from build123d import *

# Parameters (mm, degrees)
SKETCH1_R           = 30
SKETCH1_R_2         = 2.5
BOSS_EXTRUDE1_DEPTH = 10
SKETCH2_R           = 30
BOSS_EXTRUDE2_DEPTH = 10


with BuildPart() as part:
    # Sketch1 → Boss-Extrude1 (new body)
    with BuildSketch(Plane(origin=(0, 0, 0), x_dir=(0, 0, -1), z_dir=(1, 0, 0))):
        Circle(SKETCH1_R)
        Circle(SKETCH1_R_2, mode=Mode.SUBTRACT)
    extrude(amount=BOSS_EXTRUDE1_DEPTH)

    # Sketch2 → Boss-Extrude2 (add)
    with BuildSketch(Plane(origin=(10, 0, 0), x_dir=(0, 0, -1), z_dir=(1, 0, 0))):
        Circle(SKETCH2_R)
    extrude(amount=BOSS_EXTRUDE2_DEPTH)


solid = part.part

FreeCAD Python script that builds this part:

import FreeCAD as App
import Part
import Sketcher
from FreeCAD import Vector
Q = App.Units.Quantity

doc = App.newDocument("Part")
params = doc.addObject("Spreadsheet::Sheet", "Params")
for row, (alias, value) in enumerate([
    ("sketch1_diameter", "60 mm"),
    ("sketch1_diameter2", "5 mm"),
    ("pad1_length", "10 mm"),
    ("sketch2_diameter", "60 mm"),
    ("pad2_length", "10 mm"),
], start=1):
    params.set(f"A{row}", alias)
    params.set(f"B{row}", "=" + value)
    params.setAlias(f"B{row}", alias)

body = doc.addObject("PartDesign::Body", "Body")

# Sketch on YZ plane
sketch1 = body.newObject("Sketcher::SketchObject", "Sketch")
sketch1.AttachmentSupport = (doc.getObject("YZ_Plane"), [""])
sketch1.MapMode = "FlatFace"
sketch1.addGeometry([
    Part.Circle(Vector(0, 0, 0), Vector(0, 0, 1), 30),
    Part.Circle(Vector(0, 0, 0), Vector(0, 0, 1), 2.5),
], False)
sketch1.addConstraint([
    Sketcher.Constraint("Coincident", 0, 3, -1, 1),
    Sketcher.Constraint("Coincident", 1, 3, -1, 1),
    Sketcher.Constraint("Diameter", 0, Q("60 mm")),
    Sketcher.Constraint("Diameter", 1, Q("5 mm")),
])
sketch1.setExpression("Constraints[2]", "Params.sketch1_diameter")
sketch1.setExpression("Constraints[3]", "Params.sketch1_diameter2")
pad1 = body.newObject("PartDesign::Pad", "Pad")
pad1.Profile = sketch1
pad1.setExpression("Length", "Params.pad1_length")

# Sketch on YZ plane
sketch2 = body.newObject("Sketcher::SketchObject", "Sketch001")
sketch2.AttachmentSupport = (doc.getObject("YZ_Plane"), [""])
sketch2.MapMode = "FlatFace"
sketch2.AttachmentOffset = App.Placement(Vector(0, 0, 10), App.Rotation())
sketch2.addGeometry(Part.Circle(Vector(0, 0, 0), Vector(0, 0, 1), 30), False)
sketch2.addConstraint([
    Sketcher.Constraint("Coincident", 0, 3, -1, 1),
    Sketcher.Constraint("Diameter", 0, Q("60 mm")),
])
sketch2.setExpression("Constraints[1]", "Params.sketch2_diameter")
pad2 = body.newObject("PartDesign::Pad", "Pad001")
pad2.Profile = sketch2
pad2.setExpression("Length", "Params.pad2_length")

doc.recompute()
